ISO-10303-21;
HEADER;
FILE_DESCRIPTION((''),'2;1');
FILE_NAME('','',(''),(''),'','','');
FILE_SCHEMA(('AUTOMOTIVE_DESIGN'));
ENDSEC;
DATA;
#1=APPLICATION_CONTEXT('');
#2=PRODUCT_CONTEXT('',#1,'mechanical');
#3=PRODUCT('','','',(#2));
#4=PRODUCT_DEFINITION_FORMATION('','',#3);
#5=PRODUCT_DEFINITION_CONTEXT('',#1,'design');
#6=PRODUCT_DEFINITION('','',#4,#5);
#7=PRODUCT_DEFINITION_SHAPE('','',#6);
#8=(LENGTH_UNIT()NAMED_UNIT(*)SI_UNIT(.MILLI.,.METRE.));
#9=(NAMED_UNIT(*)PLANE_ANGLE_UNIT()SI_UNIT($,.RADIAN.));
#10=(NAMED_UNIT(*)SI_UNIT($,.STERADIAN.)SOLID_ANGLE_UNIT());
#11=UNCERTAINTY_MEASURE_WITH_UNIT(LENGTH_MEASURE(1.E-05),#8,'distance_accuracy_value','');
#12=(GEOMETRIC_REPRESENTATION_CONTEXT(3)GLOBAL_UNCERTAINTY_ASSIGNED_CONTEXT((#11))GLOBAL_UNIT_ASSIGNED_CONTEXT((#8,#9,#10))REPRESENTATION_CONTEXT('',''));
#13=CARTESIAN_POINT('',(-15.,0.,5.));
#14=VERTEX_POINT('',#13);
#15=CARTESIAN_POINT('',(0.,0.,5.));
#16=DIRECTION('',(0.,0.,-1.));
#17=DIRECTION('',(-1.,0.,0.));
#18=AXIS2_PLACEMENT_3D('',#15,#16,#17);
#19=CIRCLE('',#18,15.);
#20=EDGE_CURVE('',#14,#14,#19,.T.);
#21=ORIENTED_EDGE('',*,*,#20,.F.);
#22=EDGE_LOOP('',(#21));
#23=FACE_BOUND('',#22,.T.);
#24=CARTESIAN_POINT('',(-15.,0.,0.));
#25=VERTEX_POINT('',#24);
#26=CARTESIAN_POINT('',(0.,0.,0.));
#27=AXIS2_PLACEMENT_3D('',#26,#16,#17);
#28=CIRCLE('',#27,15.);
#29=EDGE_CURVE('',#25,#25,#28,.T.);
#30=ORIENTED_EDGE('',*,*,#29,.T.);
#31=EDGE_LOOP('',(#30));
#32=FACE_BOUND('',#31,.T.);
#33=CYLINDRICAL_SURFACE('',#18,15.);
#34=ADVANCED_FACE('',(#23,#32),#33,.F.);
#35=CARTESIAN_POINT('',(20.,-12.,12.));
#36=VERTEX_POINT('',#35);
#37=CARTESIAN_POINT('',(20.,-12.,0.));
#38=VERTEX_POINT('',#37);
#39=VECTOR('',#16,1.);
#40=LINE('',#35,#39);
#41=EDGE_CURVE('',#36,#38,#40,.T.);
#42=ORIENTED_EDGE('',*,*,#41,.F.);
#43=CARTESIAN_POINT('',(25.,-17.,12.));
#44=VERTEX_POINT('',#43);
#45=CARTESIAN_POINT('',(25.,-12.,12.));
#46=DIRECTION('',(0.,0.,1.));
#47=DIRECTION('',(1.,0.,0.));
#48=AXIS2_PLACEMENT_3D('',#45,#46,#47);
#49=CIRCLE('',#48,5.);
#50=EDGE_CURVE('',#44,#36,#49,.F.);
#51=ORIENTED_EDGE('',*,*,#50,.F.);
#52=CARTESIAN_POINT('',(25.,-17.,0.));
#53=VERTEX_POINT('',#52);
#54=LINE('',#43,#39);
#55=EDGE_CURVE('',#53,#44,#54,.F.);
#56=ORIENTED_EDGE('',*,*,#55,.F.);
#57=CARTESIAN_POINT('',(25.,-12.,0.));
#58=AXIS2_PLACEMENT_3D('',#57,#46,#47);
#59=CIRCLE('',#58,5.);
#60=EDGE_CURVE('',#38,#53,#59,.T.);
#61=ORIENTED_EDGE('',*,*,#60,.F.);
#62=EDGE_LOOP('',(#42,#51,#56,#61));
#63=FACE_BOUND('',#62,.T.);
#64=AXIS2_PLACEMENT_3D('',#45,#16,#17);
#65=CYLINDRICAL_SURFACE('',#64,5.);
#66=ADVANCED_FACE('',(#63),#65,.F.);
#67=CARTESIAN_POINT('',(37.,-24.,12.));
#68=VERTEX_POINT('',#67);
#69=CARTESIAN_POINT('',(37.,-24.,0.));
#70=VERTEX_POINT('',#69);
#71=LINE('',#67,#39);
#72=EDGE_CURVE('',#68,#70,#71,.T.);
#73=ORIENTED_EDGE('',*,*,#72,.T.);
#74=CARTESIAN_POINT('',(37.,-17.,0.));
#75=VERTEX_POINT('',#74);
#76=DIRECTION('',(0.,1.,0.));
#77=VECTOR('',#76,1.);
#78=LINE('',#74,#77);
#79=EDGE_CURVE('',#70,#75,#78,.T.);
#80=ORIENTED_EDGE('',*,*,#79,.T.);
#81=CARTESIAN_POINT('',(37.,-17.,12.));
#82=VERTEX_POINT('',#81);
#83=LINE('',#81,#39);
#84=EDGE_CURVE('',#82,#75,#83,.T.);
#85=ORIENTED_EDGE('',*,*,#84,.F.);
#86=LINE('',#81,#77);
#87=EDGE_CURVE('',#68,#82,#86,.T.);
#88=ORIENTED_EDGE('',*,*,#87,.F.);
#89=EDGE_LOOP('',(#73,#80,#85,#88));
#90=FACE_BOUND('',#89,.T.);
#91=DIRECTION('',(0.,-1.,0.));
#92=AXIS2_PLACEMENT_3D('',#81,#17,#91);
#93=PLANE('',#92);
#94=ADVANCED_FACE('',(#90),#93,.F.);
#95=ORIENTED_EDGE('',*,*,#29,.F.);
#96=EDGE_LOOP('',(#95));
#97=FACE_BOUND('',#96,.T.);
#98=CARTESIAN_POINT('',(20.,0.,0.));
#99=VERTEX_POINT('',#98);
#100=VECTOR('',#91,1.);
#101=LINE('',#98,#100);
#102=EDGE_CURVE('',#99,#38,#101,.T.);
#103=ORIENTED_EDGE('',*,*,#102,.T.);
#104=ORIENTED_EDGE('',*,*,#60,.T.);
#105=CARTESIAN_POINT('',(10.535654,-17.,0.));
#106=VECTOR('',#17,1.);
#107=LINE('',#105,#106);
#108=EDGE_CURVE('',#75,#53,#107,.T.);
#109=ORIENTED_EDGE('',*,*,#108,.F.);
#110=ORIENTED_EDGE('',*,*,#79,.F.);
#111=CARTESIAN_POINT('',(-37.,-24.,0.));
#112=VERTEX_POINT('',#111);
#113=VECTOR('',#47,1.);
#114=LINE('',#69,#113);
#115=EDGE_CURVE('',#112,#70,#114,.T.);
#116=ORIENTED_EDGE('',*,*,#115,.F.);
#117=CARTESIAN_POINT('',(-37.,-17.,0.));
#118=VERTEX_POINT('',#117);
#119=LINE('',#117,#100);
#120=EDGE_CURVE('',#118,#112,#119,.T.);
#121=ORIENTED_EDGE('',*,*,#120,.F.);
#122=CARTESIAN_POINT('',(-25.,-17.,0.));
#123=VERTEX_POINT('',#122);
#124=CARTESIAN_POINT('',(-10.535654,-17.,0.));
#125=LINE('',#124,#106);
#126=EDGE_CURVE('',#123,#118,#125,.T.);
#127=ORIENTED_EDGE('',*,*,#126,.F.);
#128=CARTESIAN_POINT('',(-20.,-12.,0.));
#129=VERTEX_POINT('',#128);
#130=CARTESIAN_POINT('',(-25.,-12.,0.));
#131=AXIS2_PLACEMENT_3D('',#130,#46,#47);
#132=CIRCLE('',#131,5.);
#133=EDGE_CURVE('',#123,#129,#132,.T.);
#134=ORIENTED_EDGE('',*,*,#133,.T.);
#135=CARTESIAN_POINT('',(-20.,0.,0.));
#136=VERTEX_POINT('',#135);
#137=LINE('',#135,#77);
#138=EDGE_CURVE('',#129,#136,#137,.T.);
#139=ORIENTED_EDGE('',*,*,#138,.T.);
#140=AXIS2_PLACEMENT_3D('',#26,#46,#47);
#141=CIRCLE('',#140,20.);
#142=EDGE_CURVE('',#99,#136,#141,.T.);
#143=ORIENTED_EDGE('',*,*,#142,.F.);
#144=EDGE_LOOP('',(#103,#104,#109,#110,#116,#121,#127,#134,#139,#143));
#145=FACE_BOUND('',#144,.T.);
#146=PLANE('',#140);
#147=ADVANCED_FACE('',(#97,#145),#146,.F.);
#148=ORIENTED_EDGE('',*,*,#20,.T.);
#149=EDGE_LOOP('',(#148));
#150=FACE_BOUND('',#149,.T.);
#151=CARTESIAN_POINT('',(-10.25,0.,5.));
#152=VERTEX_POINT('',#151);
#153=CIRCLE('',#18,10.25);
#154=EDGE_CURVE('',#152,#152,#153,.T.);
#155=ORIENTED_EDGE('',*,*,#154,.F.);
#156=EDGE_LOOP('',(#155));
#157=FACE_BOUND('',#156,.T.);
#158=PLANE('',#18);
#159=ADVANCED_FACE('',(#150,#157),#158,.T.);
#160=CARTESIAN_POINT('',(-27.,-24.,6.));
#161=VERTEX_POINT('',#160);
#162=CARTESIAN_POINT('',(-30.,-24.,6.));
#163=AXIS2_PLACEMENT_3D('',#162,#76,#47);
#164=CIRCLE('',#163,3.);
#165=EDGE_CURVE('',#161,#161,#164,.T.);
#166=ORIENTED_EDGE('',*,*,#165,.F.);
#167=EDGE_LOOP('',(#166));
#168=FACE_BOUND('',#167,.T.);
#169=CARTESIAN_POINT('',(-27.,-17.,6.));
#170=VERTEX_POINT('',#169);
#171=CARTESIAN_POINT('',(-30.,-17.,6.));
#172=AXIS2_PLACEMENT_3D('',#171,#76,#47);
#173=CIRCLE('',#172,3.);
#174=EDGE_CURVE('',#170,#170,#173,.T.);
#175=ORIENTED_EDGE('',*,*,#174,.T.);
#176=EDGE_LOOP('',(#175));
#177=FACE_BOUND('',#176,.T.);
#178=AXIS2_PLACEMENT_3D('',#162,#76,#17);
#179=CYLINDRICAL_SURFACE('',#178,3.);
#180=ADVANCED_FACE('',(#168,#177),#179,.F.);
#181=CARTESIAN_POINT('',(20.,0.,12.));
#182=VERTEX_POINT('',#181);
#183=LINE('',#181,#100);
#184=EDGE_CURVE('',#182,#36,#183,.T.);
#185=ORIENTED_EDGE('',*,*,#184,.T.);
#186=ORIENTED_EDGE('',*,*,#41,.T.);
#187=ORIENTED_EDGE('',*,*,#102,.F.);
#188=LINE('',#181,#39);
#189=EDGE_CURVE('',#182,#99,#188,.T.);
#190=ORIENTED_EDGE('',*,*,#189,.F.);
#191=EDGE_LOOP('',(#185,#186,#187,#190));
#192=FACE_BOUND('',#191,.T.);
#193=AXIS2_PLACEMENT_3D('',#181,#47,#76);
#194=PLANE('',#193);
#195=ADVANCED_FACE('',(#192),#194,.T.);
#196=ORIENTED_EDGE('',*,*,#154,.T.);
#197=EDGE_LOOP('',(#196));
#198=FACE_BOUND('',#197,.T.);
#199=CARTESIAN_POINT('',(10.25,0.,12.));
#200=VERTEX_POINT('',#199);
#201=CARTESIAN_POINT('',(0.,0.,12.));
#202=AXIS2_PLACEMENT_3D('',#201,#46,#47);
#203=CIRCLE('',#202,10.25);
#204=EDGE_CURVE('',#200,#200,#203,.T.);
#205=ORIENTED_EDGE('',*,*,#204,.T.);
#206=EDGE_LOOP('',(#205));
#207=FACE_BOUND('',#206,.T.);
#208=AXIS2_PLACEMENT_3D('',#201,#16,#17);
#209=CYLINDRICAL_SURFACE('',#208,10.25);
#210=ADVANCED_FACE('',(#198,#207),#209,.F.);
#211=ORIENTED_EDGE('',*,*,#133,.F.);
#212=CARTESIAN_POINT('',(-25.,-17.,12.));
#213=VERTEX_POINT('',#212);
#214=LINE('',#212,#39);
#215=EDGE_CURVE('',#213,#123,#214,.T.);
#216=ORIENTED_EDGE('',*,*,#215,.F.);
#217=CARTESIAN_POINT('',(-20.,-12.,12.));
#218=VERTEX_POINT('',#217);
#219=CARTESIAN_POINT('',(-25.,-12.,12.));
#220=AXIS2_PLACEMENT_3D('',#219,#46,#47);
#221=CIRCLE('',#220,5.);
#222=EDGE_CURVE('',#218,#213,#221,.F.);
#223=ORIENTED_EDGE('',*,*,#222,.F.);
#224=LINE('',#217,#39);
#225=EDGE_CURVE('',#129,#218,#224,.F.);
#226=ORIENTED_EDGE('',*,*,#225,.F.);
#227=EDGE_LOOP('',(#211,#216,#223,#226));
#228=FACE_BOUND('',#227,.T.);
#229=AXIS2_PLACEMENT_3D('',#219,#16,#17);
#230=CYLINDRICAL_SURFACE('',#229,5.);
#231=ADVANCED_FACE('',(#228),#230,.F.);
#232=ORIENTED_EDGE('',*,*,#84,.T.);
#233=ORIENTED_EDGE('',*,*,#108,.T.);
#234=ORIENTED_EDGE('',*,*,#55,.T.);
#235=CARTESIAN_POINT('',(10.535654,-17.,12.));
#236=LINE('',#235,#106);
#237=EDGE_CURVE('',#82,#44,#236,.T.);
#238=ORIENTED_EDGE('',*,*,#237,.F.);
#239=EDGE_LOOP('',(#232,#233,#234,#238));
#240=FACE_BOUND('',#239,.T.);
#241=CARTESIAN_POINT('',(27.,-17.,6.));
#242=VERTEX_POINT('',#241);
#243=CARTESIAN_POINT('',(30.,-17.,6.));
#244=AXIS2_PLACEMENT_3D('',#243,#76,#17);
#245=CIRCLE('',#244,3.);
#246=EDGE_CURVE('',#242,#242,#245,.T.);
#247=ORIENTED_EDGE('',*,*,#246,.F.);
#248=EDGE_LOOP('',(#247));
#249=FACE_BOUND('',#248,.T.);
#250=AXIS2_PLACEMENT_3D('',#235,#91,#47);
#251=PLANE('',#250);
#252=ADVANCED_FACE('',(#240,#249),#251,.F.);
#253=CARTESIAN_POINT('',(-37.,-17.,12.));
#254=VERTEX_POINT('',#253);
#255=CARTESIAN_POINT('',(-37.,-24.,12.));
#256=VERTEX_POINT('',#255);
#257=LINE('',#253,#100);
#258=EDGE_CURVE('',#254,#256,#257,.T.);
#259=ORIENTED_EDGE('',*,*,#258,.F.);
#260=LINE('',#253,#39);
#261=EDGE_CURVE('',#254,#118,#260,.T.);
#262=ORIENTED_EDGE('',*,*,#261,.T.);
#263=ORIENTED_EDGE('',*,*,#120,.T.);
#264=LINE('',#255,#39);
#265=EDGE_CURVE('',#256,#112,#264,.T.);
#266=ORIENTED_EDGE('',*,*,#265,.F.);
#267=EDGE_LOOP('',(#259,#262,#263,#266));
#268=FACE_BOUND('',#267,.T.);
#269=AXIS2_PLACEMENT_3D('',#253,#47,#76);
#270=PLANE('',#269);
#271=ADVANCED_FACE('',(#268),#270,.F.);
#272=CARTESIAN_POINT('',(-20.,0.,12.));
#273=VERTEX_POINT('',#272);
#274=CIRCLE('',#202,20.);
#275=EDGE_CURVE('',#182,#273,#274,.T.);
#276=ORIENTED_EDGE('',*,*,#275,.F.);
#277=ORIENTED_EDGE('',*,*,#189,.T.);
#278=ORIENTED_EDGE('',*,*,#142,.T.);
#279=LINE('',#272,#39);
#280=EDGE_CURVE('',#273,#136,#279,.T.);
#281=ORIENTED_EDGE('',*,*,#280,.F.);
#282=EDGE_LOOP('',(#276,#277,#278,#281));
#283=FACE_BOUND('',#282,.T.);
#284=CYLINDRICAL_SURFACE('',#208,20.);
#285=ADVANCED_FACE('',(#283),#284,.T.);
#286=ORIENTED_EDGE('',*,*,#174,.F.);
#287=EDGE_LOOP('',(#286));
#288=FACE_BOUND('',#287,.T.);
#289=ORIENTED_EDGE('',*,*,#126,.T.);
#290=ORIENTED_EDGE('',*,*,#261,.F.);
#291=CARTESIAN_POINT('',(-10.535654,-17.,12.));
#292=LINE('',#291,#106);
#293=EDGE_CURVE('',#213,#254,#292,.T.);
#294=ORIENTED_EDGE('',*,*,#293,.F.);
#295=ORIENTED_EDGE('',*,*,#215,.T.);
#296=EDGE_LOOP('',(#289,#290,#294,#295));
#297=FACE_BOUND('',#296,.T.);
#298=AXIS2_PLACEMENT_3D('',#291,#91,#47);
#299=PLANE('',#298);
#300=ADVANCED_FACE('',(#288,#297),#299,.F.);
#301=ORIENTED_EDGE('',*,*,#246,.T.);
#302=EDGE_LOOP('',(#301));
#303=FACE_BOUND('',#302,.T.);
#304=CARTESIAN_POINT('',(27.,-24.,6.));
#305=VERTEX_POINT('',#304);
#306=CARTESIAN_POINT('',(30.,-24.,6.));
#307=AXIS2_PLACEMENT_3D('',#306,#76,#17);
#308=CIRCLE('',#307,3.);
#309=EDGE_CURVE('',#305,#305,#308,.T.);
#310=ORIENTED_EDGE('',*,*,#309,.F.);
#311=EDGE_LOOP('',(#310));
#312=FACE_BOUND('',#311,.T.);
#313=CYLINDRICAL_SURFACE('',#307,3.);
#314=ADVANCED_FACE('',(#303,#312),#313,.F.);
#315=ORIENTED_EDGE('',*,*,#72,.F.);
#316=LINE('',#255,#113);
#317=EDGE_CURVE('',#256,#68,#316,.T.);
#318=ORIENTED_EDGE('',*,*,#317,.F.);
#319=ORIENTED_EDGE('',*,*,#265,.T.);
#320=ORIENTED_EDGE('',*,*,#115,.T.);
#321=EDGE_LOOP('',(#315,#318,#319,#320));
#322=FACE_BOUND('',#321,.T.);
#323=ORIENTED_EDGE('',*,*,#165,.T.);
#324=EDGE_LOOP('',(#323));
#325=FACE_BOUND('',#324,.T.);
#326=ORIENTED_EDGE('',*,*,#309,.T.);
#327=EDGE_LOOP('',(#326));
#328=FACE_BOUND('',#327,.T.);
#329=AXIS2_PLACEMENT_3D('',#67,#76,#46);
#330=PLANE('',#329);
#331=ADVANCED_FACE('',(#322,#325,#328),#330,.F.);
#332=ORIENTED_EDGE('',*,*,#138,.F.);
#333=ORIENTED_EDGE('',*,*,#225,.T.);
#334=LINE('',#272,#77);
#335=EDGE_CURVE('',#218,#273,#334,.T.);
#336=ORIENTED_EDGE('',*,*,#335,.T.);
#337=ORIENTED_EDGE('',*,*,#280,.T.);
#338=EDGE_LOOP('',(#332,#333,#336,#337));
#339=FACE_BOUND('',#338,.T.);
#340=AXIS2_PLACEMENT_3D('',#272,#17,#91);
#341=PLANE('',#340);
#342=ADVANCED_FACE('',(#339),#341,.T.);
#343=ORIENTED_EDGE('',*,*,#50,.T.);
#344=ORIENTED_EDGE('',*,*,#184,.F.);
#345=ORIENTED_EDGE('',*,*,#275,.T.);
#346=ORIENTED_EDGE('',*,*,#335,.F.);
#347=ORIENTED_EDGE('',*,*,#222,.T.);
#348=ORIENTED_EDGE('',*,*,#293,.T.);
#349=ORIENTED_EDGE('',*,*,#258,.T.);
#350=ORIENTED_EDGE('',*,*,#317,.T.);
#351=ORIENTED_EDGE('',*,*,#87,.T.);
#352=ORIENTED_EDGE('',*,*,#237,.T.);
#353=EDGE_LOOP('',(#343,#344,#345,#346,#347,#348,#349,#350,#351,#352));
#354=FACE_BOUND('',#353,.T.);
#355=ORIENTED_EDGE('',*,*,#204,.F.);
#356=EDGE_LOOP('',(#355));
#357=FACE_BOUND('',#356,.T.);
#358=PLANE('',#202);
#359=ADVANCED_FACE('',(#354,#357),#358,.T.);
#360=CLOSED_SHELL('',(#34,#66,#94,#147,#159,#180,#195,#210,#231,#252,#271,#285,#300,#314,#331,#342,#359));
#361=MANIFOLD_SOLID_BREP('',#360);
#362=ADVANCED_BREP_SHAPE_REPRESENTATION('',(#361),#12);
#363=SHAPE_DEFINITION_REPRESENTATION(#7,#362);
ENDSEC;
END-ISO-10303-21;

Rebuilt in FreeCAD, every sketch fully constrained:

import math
import FreeCAD as App
import Part
import Sketcher
from FreeCAD import Vector
Q = App.Units.Quantity


def edges_at(feature, points):
    """Names of the edges that pass closest to the given points."""
    edges = feature.Shape.Edges
    near = lambda p: min(range(len(edges)), key=lambda i: edges[i].distToShape(Part.Vertex(*p))[0])
    return sorted({f"Edge{near(p) + 1}" for p in points})

doc = App.newDocument("Part")
body = doc.addObject("PartDesign::Body", "Body")

sketch1 = body.newObject("Sketcher::SketchObject", "Sketch")
sketch1.AttachmentSupport = (doc.getObject("XY_Plane"), [""])
sketch1.MapMode = "FlatFace"
sketch1.addGeometry([
    Part.LineSegment(Vector(-10.535654, -17, 0), Vector(-37, -17, 0)),
    Part.LineSegment(Vector(-37, -17, 0), Vector(-37, -24, 0)),
    Part.LineSegment(Vector(-37, -24, 0), Vector(37, -24, 0)),
    Part.LineSegment(Vector(37, -24, 0), Vector(37, -17, 0)),
    Part.LineSegment(Vector(37, -17, 0), Vector(10.535654, -17, 0)),
    Part.ArcOfCircle(Part.Circle(Vector(0, 0, 0), Vector(0, 0, 1), 20), math.radians(-58.211669), math.radians(238.211669)),
    Part.Circle(Vector(0, 0, 0), Vector(0, 0, 1), 10.25),
], False)
sketch1.addConstraint([
    Sketcher.Constraint("Coincident", 0, 2, 1, 1),
    Sketcher.Constraint("Coincident", 1, 2, 2, 1),
    Sketcher.Constraint("Coincident", 2, 2, 3, 1),
    Sketcher.Constraint("Coincident", 3, 2, 4, 1),
    Sketcher.Constraint("Coincident", 4, 2, 5, 1),
    Sketcher.Constraint("Coincident", 5, 2, 0, 1),
    Sketcher.Constraint("Horizontal", 0),
    Sketcher.Constraint("Vertical", 1),
    Sketcher.Constraint("Horizontal", 2),
    Sketcher.Constraint("Vertical", 3),
    Sketcher.Constraint("Horizontal", 4),
    Sketcher.Constraint("Coincident", 5, 3, -1, 1),
    Sketcher.Constraint("Coincident", 6, 3, -1, 1),
    Sketcher.Constraint("Symmetric", 0, 2, 3, 2, -2),
    Sketcher.Constraint("Radius", 5, Q("20 mm")),
    Sketcher.Constraint("Diameter", 6, Q("20.5 mm")),
    Sketcher.Constraint("DistanceX", 2, 1, 2, 2, Q("74 mm")),
    Sketcher.Constraint("DistanceY", 1, 2, 1, 1, Q("7 mm")),
    Sketcher.Constraint("DistanceY", 0, 2, -1, 1, Q("17 mm")),
])
pad1 = body.newObject("PartDesign::Pad", "Pad")
pad1.Profile = sketch1
pad1.Length = 12

sketch2 = body.newObject("Sketcher::SketchObject", "Sketch001")
sketch2.AttachmentSupport = (doc.getObject("XZ_Plane"), [""])
sketch2.MapMode = "FlatFace"
sketch2.AttachmentOffset = App.Placement(Vector(0, 0, 17), App.Rotation())
sketch2.addGeometry([
    Part.Circle(Vector(30, 6, 0), Vector(0, 0, 1), 3),
    Part.Circle(Vector(-30, 6, 0), Vector(0, 0, 1), 3),
], False)
sketch2.addConstraint([
    Sketcher.Constraint("Equal", 0, 1),
    Sketcher.Constraint("Symmetric", 0, 3, 1, 3, -2),
    Sketcher.Constraint("Diameter", 0, Q("6 mm")),
    Sketcher.Constraint("DistanceX", -1, 1, 0, 3, Q("30 mm")),
    Sketcher.Constraint("DistanceY", -1, 1, 0, 3, Q("6 mm")),
])
pocket1 = body.newObject("PartDesign::Pocket", "Pocket")
pocket1.Profile = sketch2
pocket1.Type = "ThroughAll"
pocket1.Reversed = True

sketch3 = body.newObject("Sketcher::SketchObject", "Sketch002")
sketch3.AttachmentSupport = (doc.getObject("XY_Plane"), [""])
sketch3.MapMode = "FlatFace"
sketch3.addGeometry(Part.Circle(Vector(0, 0, 0), Vector(0, 0, 1), 15), False)
sketch3.addConstraint([
    Sketcher.Constraint("Coincident", 0, 3, -1, 1),
    Sketcher.Constraint("Diameter", 0, Q("30 mm")),
])
pocket2 = body.newObject("PartDesign::Pocket", "Pocket001")
pocket2.Profile = sketch3
pocket2.Length = 5
pocket2.Reversed = True

sketch4 = body.newObject("Sketcher::SketchObject", "Sketch003")
sketch4.AttachmentSupport = (doc.getObject("XY_Plane"), [""])
sketch4.MapMode = "FlatFace"
sketch4.addGeometry([
    Part.LineSegment(Vector(10.535654, -17, 0), Vector(20, 0, 0)),
    Part.LineSegment(Vector(20, 0, 0), Vector(20, -17, 0)),
    Part.LineSegment(Vector(20, -17, 0), Vector(10.535654, -17, 0)),
    Part.LineSegment(Vector(-20, -17, 0), Vector(-20, 0, 0)),
    Part.LineSegment(Vector(-20, 0, 0), Vector(-10.535654, -17, 0)),
    Part.LineSegment(Vector(-10.535654, -17, 0), Vector(-20, -17, 0)),
], False)
sketch4.addConstraint([
    Sketcher.Constraint("Coincident", 0, 2, 1, 1),
    Sketcher.Constraint("Coincident", 1, 2, 2, 1),
    Sketcher.Constraint("Coincident", 2, 2, 0, 1),
    Sketcher.Constraint("Coincident", 3, 2, 4, 1),
    Sketcher.Constraint("Coincident", 4, 2, 5, 1),
    Sketcher.Constraint("Coincident", 5, 2, 3, 1),
    Sketcher.Constraint("Vertical", 1),
    Sketcher.Constraint("Horizontal", 2),
    Sketcher.Constraint("Vertical", 3),
    Sketcher.Constraint("Horizontal", 5),
    Sketcher.Constraint("Symmetric", 0, 2, 3, 2, -1, 1),
    Sketcher.Constraint("Symmetric", 2, 2, 4, 2, -2),
    Sketcher.Constraint("PointOnObject", 0, 2, -1),
    Sketcher.Constraint("DistanceY", 1, 2, 1, 1, Q("17 mm")),
    Sketcher.Constraint("DistanceX", -1, 1, 0, 2, Q("20 mm")),
    Sketcher.Constraint("DistanceX", 2, 2, 2, 1, Q("9.464346 mm")),
])
pad2 = body.newObject("PartDesign::Pad", "Pad001")
pad2.Profile = sketch4
pad2.Type = "UpToLast"
doc.recompute()

fillet = body.newObject("PartDesign::Fillet", "Fillet")
fillet.Base = (pad2, edges_at(pad2, [(-20, -17, 6), (20, -17, 6)]))
fillet.Radius = 5

doc.recompute()
